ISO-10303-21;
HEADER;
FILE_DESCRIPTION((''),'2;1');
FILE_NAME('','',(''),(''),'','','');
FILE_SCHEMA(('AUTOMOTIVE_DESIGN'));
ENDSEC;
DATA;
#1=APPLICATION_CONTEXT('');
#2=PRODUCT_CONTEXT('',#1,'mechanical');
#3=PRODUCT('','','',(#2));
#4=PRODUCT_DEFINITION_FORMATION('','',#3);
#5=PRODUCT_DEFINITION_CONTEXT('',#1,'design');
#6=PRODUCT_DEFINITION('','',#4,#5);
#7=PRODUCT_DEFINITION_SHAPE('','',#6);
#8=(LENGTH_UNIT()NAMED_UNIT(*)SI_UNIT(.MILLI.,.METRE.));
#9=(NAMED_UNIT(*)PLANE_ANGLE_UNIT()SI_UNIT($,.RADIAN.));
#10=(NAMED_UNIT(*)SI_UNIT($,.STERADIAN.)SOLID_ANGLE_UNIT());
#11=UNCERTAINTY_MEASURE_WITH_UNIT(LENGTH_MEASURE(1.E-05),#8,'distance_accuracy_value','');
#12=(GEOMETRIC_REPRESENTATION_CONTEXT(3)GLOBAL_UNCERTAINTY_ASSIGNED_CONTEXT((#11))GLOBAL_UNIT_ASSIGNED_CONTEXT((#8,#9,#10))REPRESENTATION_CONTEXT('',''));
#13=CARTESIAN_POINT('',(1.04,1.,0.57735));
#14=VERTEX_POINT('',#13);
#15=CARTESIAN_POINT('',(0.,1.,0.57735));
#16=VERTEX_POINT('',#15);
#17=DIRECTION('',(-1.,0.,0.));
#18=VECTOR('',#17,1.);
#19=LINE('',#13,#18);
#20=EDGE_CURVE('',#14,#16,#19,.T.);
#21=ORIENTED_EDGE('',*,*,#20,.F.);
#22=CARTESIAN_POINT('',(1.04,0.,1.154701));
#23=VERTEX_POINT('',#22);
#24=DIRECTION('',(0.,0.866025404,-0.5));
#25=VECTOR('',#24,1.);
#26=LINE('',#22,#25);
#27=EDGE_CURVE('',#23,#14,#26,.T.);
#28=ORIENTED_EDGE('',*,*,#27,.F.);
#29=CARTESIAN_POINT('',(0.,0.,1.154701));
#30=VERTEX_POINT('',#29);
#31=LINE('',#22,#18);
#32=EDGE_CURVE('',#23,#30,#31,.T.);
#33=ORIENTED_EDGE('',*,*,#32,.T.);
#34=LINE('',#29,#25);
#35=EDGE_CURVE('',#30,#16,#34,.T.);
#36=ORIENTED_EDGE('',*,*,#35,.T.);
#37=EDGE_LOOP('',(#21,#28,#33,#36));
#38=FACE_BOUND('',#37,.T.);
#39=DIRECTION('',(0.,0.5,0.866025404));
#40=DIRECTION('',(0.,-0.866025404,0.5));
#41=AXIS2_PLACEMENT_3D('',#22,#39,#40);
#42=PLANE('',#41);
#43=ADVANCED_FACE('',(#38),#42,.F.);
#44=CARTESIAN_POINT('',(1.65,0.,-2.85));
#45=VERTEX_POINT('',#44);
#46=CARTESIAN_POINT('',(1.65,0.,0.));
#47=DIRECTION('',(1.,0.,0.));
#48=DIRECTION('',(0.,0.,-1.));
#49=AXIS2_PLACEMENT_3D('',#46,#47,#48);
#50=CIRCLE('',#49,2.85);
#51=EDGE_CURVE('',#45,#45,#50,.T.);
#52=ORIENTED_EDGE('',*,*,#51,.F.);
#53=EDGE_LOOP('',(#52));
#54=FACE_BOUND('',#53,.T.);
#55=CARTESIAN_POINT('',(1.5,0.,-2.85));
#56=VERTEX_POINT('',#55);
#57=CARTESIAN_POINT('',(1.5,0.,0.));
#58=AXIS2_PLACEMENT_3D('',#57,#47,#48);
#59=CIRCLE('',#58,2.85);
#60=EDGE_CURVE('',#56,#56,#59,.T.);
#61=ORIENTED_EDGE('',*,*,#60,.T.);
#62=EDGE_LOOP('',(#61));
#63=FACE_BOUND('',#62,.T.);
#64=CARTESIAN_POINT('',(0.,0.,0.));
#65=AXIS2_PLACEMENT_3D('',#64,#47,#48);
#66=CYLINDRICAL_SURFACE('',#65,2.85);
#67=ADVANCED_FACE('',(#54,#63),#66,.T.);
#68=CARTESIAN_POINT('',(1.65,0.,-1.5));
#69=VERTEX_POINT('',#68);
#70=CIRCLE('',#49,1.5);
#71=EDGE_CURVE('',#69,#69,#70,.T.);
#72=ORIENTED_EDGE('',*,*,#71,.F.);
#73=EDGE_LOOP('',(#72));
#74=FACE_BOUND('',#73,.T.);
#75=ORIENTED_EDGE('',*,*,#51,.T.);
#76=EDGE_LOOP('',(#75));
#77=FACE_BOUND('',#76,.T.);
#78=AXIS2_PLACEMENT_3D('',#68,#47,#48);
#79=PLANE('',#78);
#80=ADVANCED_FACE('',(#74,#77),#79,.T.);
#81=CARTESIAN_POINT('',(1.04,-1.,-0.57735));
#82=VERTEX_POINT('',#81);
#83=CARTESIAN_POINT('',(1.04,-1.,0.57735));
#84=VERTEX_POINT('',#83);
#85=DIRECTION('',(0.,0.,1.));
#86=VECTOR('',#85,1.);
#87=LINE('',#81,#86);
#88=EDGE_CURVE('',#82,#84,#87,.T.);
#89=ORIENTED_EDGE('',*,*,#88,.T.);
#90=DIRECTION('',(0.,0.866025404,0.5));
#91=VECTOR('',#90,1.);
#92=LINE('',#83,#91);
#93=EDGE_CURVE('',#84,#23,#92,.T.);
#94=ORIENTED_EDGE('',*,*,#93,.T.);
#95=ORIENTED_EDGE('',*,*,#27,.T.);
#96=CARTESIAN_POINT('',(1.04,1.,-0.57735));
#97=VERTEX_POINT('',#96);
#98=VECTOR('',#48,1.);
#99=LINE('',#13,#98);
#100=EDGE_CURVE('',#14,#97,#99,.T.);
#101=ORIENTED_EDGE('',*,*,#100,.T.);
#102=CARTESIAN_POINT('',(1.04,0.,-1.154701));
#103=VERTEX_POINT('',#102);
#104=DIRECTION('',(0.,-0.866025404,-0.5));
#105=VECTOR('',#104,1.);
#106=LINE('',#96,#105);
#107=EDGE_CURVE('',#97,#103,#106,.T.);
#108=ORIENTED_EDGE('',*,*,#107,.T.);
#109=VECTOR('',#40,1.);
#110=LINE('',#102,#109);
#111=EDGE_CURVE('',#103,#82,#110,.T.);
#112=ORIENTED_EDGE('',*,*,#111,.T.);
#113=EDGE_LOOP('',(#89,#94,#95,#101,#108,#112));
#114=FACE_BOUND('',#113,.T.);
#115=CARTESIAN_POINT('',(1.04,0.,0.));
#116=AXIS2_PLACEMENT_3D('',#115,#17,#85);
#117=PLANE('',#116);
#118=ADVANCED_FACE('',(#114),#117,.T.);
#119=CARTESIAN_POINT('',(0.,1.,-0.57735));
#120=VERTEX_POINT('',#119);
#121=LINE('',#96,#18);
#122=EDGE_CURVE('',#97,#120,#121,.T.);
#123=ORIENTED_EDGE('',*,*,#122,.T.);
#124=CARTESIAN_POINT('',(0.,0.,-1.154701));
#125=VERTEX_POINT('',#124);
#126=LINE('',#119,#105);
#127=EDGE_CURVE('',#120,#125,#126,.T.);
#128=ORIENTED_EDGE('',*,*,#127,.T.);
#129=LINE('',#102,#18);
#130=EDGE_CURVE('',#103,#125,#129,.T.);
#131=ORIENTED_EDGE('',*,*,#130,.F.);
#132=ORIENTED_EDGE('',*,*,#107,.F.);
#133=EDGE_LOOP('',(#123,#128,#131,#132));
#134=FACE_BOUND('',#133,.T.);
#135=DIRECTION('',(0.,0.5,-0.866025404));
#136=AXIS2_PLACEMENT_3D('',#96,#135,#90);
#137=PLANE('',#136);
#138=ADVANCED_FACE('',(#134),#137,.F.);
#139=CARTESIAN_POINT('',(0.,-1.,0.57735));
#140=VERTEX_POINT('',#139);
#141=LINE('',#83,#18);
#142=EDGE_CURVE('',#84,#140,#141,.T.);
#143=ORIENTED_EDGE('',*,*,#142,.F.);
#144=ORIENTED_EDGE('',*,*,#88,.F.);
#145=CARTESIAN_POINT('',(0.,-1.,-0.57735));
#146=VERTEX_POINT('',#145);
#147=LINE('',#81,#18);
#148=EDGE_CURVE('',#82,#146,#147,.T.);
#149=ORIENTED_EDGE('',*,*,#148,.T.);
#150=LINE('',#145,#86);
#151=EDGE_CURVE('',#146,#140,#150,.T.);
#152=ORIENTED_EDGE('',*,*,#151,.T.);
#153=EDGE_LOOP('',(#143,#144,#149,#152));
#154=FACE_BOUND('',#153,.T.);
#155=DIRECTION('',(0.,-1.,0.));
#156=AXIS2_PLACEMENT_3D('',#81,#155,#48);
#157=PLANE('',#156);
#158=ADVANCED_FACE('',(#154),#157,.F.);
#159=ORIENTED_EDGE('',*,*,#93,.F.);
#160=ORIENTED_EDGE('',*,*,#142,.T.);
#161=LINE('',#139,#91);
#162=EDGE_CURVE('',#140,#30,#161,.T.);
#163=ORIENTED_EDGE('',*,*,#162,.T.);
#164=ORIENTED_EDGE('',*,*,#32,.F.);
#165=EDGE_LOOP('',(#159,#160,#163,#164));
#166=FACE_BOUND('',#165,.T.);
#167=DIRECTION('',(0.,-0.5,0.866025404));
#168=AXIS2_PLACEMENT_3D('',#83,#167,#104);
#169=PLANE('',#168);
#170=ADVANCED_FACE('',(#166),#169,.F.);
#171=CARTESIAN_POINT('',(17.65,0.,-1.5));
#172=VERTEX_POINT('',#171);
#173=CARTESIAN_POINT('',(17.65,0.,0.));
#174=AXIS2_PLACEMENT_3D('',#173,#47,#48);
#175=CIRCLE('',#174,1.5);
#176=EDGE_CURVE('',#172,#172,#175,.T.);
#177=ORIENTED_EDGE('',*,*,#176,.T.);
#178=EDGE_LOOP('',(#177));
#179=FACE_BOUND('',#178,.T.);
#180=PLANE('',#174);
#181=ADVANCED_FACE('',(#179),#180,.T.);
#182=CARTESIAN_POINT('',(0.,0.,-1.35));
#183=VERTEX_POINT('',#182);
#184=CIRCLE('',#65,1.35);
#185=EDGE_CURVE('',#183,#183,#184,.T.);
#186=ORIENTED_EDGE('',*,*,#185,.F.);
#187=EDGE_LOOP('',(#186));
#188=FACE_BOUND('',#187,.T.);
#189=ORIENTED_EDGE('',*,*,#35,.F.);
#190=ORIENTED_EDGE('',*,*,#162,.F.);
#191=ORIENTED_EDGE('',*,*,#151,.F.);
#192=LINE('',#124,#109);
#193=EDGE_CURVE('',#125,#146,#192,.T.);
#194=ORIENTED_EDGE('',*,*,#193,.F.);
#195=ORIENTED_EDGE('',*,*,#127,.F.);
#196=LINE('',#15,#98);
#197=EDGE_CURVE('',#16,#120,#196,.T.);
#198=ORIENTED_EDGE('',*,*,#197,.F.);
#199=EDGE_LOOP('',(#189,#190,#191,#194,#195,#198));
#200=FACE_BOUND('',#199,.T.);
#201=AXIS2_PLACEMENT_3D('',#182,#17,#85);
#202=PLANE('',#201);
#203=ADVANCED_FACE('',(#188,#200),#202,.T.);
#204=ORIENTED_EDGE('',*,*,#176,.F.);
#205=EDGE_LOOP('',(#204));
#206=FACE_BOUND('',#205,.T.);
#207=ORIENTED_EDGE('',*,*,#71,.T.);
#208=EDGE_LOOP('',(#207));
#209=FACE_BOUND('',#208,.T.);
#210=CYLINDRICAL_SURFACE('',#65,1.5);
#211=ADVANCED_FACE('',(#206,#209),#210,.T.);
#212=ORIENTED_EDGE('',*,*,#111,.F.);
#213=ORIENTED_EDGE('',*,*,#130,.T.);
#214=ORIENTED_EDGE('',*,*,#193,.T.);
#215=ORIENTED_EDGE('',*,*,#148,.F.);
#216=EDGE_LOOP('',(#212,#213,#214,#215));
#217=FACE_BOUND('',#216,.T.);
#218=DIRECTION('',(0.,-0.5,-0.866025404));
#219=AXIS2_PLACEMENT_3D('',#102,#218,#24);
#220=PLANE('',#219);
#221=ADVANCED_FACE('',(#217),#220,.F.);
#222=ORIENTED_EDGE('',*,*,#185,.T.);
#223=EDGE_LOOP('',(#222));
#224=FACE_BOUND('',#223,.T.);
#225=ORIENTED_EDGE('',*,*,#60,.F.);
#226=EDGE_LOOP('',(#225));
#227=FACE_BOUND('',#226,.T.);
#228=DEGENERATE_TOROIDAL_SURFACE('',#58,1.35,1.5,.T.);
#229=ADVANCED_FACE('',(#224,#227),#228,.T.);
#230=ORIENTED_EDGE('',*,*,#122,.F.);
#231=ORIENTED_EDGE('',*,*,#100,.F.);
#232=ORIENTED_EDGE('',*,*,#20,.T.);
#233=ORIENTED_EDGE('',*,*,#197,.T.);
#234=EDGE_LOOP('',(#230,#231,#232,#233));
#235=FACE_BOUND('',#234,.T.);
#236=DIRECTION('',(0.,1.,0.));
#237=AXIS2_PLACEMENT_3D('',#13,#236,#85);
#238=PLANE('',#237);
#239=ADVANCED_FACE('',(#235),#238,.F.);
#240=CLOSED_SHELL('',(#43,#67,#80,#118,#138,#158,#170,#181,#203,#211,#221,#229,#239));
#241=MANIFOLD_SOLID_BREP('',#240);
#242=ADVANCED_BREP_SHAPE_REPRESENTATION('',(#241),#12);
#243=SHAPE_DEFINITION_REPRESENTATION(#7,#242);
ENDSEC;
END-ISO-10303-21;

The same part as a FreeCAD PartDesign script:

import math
import FreeCAD as App
import Part
import Sketcher
Q = App.Units.Quantity


def add_polygon(sketch, points):
    """Adds a closed chain of lines whose ends are joined by coincident constraints."""
    first, n = sketch.GeometryCount, len(points)
    for a, b in zip(points, points[1:] + points[:1]):
        sketch.addGeometry(Part.LineSegment(App.Vector(*a, 0), App.Vector(*b, 0)), False)
    for i in range(n):
        sketch.addConstraint(Sketcher.Constraint("Coincident", first + i, 2, first + (i + 1) % n, 1))

doc = App.newDocument("Part")
body = doc.addObject("PartDesign::Body", "Body")

sketch1 = body.newObject("Sketcher::SketchObject", "Sketch")
sketch1.AttachmentSupport = (doc.getObject("XZ_Plane"), [""])
sketch1.MapMode = "FlatFace"
sketch1.addGeometry(Part.LineSegment(App.Vector(0, 0, 0), App.Vector(17.65, 0, 0)), False)
sketch1.addGeometry(Part.LineSegment(App.Vector(17.65, 0, 0), App.Vector(17.65, -1.5, 0)), False)
sketch1.addGeometry(Part.LineSegment(App.Vector(17.65, -1.5, 0), App.Vector(1.65, -1.5, 0)), False)
sketch1.addGeometry(Part.LineSegment(App.Vector(1.65, -1.5, 0), App.Vector(1.65, -2.85, 0)), False)
sketch1.addGeometry(Part.LineSegment(App.Vector(1.65, -2.85, 0), App.Vector(1.5, -2.85, 0)), False)
sketch1.addGeometry(Part.ArcOfCircle(Part.Circle(App.Vector(1.5, -1.35, 0), App.Vector(0, 0, 1), 1.5), math.radians(180), math.radians(270)), False)
sketch1.addGeometry(Part.LineSegment(App.Vector(0, -1.35, 0), App.Vector(0, 0, 0)), False)
sketch1.addConstraint(Sketcher.Constraint("Coincident", 0, 2, 1, 1))
sketch1.addConstraint(Sketcher.Constraint("Coincident", 1, 2, 2, 1))
sketch1.addConstraint(Sketcher.Constraint("Coincident", 2, 2, 3, 1))
sketch1.addConstraint(Sketcher.Constraint("Coincident", 3, 2, 4, 1))
sketch1.addConstraint(Sketcher.Constraint("Tangent", 4, 2, 5, 2))
sketch1.addConstraint(Sketcher.Constraint("Tangent", 5, 1, 6, 1))
sketch1.addConstraint(Sketcher.Constraint("Coincident", 6, 2, 0, 1))
sketch1.addConstraint(Sketcher.Constraint("Horizontal", 0))
sketch1.addConstraint(Sketcher.Constraint("Vertical", 1))
sketch1.addConstraint(Sketcher.Constraint("Horizontal", 2))
sketch1.addConstraint(Sketcher.Constraint("Vertical", 3))
sketch1.addConstraint(Sketcher.Constraint("Horizontal", 4))
sketch1.addConstraint(Sketcher.Constraint("Vertical", 6))
sketch1.addConstraint(Sketcher.Constraint("Coincident", 6, 2, -1, 1))
sketch1.addConstraint(Sketcher.Constraint("Equal", 3, 6))
sketch1.addConstraint(Sketcher.Constraint("Radius", 5, Q("1.5 mm")))
sketch1.addConstraint(Sketcher.Constraint("DistanceX", 2, 2, 2, 1, Q("16 mm")))
sketch1.addConstraint(Sketcher.Constraint("DistanceX", 0, 1, 0, 2, Q("17.65 mm")))
sketch1.addConstraint(Sketcher.Constraint("DistanceY", 3, 2, 3, 1, Q("1.35 mm")))
revolution = body.newObject("PartDesign::Revolution", "Revolution")
revolution.Profile = sketch1
revolution.ReferenceAxis = (sketch1, ["H_Axis"])
revolution.Angle = 360

sketch2 = body.newObject("Sketcher::SketchObject", "Sketch001")
sketch2.AttachmentSupport = (doc.getObject("YZ_Plane"), [""])
sketch2.MapMode = "FlatFace"
add_polygon(sketch2, [(0, 1.2), (1, 0.6), (1, -0.6), (0, -1.2), (-1, -0.6), (-1, 0.6)])
sketch2.addConstraint(Sketcher.Constraint("Vertical", 1))
sketch2.addConstraint(Sketcher.Constraint("Vertical", 4))
sketch2.addConstraint(Sketcher.Constraint("Symmetric", 0, 2, 3, 2, -1, 1))
sketch2.addConstraint(Sketcher.Constraint("Symmetric", 2, 2, 5, 2, -1, 1))
sketch2.addConstraint(Sketcher.Constraint("PointOnObject", 2, 2, -2))
sketch2.addConstraint(Sketcher.Constraint("Parallel", 2, 5))
sketch2.addConstraint(Sketcher.Constraint("Horizontal", 1, 2, 3, 2))
sketch2.addConstraint(Sketcher.Constraint("Angle", 0, Q("-30 deg")))
sketch2.addConstraint(Sketcher.Constraint("DistanceX", -1, 1, 0, 2, Q("1 mm")))
sketch2.addConstraint(Sketcher.Constraint("DistanceY", 1, 2, 1, 1, Q("1.154701 mm")))
pocket1 = body.newObject("PartDesign::Pocket", "Pocket")
pocket1.Profile = sketch2
pocket1.Length = 1.04
pocket1.Reversed = True

doc.recompute()
